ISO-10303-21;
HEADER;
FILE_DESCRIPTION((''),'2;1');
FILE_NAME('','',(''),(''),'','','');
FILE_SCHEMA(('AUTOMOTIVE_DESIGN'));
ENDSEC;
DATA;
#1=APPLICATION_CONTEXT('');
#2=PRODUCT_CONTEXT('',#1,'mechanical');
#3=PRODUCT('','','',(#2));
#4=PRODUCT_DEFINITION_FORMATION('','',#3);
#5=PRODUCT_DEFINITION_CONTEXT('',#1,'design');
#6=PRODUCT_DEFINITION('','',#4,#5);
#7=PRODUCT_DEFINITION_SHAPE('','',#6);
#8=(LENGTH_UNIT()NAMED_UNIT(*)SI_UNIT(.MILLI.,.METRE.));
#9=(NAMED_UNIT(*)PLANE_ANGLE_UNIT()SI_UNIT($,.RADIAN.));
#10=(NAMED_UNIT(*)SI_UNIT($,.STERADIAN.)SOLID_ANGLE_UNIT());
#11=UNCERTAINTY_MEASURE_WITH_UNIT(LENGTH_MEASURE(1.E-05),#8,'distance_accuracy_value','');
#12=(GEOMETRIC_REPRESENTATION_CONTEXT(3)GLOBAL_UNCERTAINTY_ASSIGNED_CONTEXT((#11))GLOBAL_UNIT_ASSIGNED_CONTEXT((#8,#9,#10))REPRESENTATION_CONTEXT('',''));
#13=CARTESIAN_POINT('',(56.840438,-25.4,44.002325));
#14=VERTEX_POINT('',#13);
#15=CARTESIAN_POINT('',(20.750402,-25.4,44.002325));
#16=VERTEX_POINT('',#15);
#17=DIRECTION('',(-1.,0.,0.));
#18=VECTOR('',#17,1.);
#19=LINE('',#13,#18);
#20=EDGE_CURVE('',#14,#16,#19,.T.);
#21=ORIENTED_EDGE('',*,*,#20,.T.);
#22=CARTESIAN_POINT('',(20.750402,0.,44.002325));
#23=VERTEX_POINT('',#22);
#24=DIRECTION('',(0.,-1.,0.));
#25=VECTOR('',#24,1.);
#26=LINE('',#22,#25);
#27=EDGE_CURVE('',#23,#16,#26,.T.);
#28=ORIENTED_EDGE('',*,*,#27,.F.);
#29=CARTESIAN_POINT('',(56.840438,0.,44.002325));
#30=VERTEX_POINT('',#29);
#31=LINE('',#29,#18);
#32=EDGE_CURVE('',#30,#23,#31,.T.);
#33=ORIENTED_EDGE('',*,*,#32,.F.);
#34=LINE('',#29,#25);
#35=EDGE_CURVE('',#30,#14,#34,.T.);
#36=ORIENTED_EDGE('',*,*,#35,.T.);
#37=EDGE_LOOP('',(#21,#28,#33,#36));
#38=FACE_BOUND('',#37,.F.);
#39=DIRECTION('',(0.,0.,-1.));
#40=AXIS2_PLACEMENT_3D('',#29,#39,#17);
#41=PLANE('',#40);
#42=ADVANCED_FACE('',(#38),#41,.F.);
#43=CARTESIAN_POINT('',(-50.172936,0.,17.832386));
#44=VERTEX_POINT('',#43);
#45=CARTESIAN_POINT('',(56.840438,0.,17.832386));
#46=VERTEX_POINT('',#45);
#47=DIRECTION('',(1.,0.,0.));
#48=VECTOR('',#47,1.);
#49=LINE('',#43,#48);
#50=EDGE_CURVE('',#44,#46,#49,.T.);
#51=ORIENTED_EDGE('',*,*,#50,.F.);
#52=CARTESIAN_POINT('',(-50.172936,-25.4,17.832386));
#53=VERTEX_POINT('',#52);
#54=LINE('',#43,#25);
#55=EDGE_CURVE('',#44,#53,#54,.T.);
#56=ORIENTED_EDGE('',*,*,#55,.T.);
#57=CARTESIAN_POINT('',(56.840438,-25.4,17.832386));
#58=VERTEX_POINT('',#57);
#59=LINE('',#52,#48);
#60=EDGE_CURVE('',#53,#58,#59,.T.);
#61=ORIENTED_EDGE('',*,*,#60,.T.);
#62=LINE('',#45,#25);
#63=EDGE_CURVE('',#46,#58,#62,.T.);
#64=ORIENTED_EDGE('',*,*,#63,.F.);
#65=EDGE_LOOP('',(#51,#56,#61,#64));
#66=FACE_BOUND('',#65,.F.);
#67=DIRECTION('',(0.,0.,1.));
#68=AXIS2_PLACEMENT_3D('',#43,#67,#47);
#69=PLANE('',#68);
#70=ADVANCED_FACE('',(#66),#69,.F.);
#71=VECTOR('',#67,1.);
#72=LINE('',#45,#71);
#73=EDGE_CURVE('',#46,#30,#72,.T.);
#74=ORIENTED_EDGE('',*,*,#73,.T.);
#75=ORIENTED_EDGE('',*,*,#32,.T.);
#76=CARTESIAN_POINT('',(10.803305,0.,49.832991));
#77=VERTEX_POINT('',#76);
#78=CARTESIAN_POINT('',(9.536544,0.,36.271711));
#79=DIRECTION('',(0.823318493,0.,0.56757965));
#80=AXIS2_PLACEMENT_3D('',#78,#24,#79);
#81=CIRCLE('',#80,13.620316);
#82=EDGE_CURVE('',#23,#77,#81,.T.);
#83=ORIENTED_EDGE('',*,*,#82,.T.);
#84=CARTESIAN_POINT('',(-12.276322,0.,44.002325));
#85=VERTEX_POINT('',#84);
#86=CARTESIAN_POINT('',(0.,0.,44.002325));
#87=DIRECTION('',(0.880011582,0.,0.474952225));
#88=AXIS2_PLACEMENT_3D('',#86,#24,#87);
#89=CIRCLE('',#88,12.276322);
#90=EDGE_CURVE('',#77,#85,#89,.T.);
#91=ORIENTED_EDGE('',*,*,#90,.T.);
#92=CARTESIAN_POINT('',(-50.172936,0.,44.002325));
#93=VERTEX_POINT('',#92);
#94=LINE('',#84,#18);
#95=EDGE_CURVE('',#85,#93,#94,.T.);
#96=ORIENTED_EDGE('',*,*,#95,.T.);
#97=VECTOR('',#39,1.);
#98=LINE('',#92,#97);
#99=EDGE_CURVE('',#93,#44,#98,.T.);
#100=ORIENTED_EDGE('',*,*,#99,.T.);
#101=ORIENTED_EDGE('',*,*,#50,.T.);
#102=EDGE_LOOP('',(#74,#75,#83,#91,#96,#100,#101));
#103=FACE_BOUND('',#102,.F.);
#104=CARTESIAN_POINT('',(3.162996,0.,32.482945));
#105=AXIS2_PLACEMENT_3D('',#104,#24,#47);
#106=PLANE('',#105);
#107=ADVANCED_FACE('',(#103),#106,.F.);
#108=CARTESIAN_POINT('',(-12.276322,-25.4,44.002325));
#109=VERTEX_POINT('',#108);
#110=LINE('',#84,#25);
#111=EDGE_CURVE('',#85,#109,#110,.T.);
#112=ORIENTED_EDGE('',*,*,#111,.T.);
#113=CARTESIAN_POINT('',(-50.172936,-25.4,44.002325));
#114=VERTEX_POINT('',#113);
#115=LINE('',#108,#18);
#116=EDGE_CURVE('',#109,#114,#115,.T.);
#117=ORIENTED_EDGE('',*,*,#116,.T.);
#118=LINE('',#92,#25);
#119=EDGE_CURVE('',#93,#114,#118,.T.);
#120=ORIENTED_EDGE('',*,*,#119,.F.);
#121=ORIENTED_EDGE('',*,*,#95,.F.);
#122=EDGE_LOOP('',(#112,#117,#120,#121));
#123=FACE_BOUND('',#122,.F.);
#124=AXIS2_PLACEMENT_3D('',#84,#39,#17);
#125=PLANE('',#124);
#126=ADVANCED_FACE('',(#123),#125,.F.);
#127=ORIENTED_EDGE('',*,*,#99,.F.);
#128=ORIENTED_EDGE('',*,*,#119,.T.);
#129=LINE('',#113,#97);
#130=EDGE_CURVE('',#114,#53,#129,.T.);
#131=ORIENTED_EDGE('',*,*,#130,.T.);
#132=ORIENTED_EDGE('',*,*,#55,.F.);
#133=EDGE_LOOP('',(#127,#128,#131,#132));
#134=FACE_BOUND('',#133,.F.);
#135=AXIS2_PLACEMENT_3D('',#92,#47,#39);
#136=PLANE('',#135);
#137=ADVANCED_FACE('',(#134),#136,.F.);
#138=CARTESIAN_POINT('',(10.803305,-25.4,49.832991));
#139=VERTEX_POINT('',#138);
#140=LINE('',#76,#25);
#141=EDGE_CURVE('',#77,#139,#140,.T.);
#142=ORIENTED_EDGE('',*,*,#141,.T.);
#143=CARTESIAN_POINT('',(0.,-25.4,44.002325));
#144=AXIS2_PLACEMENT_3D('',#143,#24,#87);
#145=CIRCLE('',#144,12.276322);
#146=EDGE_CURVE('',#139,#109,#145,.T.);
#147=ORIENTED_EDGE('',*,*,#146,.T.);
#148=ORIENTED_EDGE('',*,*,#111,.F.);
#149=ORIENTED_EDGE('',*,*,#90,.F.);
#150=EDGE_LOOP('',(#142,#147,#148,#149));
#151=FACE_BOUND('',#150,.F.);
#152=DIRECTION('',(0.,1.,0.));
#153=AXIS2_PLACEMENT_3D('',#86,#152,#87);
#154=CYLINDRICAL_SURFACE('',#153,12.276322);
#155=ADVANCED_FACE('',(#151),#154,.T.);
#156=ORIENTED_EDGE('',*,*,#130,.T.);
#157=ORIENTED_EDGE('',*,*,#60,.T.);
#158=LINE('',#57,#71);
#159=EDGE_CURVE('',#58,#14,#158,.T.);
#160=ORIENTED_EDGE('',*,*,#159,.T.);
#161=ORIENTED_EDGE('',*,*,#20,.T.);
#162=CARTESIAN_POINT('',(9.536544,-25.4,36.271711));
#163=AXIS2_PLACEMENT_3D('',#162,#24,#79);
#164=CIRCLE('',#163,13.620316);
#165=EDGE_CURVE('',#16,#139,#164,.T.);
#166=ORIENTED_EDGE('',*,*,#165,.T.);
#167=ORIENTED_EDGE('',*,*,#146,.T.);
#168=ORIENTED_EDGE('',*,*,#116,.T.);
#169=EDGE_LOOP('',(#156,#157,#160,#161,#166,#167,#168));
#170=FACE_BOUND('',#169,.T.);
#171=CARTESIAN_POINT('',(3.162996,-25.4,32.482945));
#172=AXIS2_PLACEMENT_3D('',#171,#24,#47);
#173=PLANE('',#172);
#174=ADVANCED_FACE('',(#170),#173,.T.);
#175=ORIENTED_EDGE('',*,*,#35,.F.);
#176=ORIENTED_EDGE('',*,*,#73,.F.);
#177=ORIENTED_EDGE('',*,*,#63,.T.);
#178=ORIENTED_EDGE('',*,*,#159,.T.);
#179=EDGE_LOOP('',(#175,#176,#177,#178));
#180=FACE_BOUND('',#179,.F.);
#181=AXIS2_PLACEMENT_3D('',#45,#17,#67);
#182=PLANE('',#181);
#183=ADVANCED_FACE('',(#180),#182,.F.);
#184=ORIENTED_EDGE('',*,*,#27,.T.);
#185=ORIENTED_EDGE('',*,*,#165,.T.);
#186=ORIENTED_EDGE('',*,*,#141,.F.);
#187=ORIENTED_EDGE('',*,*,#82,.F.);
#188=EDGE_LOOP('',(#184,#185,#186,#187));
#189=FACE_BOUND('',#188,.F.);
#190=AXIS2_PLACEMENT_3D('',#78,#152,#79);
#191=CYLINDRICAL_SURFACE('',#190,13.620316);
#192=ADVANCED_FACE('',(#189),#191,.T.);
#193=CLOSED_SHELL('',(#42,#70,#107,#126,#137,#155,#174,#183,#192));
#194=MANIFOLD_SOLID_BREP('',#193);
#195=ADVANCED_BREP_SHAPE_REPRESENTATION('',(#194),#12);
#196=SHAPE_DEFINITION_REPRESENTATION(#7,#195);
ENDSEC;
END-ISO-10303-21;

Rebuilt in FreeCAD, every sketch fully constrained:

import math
import FreeCAD as App
import Part
import Sketcher

doc = App.newDocument("Part")
params = doc.addObject("Spreadsheet::Sheet", "Params")
for row, (alias, value) in enumerate([
    ("pad1_length", "1 in"),
], start=1):
    params.set(f"A{row}", alias)
    params.set(f"B{row}", "=" + value)
    params.setAlias(f"B{row}", alias)

body = doc.addObject("PartDesign::Body", "Body")

# Sketch on XZ plane
sketch1 = body.newObject("Sketcher::SketchObject", "Sketch")
sketch1.AttachmentSupport = (doc.getObject("XZ_Plane"), [""])
sketch1.MapMode = "FlatFace"
sketch1.addGeometry([
    Part.LineSegment(App.Vector(-12, 44, 0), App.Vector(-50, 44, 0)),  # 0
    Part.LineSegment(App.Vector(-50, 44, 0), App.Vector(-50, 18, 0)),  # 1
    Part.LineSegment(App.Vector(-50, 18, 0), App.Vector(57, 18, 0)),  # 2
    Part.LineSegment(App.Vector(57, 18, 0), App.Vector(57, 44, 0)),  # 3
    Part.LineSegment(App.Vector(57, 44, 0), App.Vector(21, 44, 0)),  # 4
    Part.ArcOfCircle(Part.Circle(App.Vector(10, 36, 0), App.Vector(0, 0, 1), 14), math.radians(35), math.radians(85)),  # 5
    Part.ArcOfCircle(Part.Circle(App.Vector(0, 44, 0), App.Vector(0, 0, 1), 12), math.radians(28), math.radians(180)),  # 6
], False)
sketch1.addConstraint([
    Sketcher.Constraint("Coincident", 0, 2, 1, 1),
    Sketcher.Constraint("Coincident", 1, 2, 2, 1),
    Sketcher.Constraint("Coincident", 2, 2, 3, 1),
    Sketcher.Constraint("Coincident", 3, 2, 4, 1),
    Sketcher.Constraint("Coincident", 4, 2, 5, 1),
    Sketcher.Constraint("Coincident", 5, 2, 6, 1),
    Sketcher.Constraint("Coincident", 6, 2, 0, 1),
    Sketcher.Constraint("Horizontal", 0),
    Sketcher.Constraint("Vertical", 1),
    Sketcher.Constraint("Horizontal", 2),
    Sketcher.Constraint("Vertical", 3),
    Sketcher.Constraint("Horizontal", 4),
    Sketcher.Constraint("PointOnObject", 6, 3, -2),
    Sketcher.Constraint("Horizontal", 6, 3, 0, 2),
    Sketcher.Constraint("Horizontal", 0, 2, 3, 2),
    Sketcher.Constraint("Radius", 6, 12.276322),
    Sketcher.Constraint("Radius", 5, 13.620316),
    Sketcher.Constraint("DistanceY", 1, 2, 1, 1, 26.169939),
    Sketcher.Constraint("DistanceX", 0, 2, 0, 1, 37.896614),
    Sketcher.Constraint("DistanceX", 2, 1, 2, 2, 107.013374),
    Sketcher.Constraint("DistanceX", 4, 2, 4, 1, 36.090036),
    Sketcher.Constraint("DistanceY", -1, 1, 5, 3, 36.271711),
    Sketcher.Constraint("DistanceY", -1, 1, 5, 2, 49.832991),
])
pad1 = body.newObject("PartDesign::Pad", "Pad")
pad1.Profile = sketch1
pad1.setExpression("Length", "Params.pad1_length")

doc.recompute()
